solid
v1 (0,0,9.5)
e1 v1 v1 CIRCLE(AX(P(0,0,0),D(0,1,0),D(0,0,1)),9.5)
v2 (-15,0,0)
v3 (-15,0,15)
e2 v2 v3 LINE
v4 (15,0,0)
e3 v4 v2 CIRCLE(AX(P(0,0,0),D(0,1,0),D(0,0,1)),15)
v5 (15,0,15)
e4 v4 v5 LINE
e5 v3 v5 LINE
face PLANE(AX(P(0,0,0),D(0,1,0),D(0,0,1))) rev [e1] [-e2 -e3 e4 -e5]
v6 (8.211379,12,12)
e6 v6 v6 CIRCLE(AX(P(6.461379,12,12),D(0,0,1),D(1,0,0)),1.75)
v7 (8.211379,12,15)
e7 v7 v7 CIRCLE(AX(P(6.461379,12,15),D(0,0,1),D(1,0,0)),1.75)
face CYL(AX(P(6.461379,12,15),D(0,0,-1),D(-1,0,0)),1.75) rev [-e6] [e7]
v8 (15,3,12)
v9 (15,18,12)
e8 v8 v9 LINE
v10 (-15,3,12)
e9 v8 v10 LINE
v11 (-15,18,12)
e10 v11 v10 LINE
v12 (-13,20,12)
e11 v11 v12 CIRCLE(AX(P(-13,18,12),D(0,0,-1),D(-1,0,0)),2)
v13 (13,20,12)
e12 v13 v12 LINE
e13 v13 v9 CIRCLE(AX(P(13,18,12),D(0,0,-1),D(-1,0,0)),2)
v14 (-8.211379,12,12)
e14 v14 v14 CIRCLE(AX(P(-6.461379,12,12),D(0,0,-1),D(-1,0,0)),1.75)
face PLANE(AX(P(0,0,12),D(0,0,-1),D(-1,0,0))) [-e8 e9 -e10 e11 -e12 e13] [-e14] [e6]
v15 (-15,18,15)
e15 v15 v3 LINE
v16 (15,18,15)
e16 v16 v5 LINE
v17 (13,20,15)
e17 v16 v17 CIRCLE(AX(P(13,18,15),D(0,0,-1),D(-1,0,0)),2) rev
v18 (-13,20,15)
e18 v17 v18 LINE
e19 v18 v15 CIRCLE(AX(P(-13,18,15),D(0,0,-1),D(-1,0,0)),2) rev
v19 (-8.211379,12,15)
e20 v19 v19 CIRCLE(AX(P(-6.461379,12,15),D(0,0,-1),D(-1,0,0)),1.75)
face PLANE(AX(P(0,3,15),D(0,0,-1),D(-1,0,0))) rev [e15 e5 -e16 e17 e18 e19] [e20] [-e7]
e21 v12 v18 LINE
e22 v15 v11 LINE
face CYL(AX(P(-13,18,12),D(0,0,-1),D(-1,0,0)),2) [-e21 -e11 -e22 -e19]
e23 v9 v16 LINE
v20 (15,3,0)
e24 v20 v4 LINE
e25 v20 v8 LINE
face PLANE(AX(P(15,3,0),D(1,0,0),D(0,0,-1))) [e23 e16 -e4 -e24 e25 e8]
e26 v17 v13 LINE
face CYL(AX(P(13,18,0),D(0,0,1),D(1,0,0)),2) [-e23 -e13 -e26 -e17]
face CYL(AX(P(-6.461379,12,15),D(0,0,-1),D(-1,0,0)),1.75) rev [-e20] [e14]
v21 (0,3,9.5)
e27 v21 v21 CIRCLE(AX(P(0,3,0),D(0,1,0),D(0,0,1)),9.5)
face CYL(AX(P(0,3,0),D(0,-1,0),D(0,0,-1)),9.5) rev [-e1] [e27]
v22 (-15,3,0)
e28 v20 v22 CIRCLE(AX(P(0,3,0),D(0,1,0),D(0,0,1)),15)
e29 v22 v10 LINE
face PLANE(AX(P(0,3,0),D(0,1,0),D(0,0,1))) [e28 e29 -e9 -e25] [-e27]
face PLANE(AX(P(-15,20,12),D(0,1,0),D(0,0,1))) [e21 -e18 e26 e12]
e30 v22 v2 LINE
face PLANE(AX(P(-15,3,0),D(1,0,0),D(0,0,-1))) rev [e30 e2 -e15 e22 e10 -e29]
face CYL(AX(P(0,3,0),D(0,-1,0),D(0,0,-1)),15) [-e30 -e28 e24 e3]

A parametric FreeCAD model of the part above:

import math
import FreeCAD as App
import Part
import Sketcher
Q = App.Units.Quantity


def edges_at(feature, points):
    """Names of the edges that pass closest to the given points."""
    edges = feature.Shape.Edges
    near = lambda p: min(range(len(edges)), key=lambda i: edges[i].distToShape(Part.Vertex(*p))[0])
    return sorted({f"Edge{near(p) + 1}" for p in points})


def add_polygon(sketch, points):
    """Adds a closed chain of lines whose ends are joined by coincident constraints."""
    first, n = sketch.GeometryCount, len(points)
    for a, b in zip(points, points[1:] + points[:1]):
        sketch.addGeometry(Part.LineSegment(App.Vector(*a, 0), App.Vector(*b, 0)), False)
    for i in range(n):
        sketch.addConstraint(Sketcher.Constraint("Coincident", first + i, 2, first + (i + 1) % n, 1))

doc = App.newDocument("Part")
params = doc.addObject("Spreadsheet::Sheet", "Params")
for row, (alias, value) in enumerate([
    ("sketch1_diameter", "19 mm"),
    ("sketch1_radius", "15 mm"),
    ("sketch1_height", "15 mm"),
    ("pad1_length", "3 mm"),
    ("sketch2_width", "30 mm"),
    ("sketch2_height", "20 mm"),
    ("pad2_length", "3 mm"),
    ("sketch3_diameter", "3.5 mm"),
    ("fillet_radius", "2 mm"),
], start=1):
    params.set(f"A{row}", alias)
    params.set(f"B{row}", "=" + value)
    params.setAlias(f"B{row}", alias)

body = doc.addObject("PartDesign::Body", "Body")

sketch1 = body.newObject("Sketcher::SketchObject", "Sketch")
sketch1.AttachmentSupport = (doc.getObject("XZ_Plane"), [""])
sketch1.MapMode = "FlatFace"
sketch1.addGeometry(Part.LineSegment(App.Vector(15, 15, 0), App.Vector(15, 0, 0)), False)
sketch1.addGeometry(Part.ArcOfCircle(Part.Circle(App.Vector(0, 0, 0), App.Vector(0, 0, 1), 15), math.radians(180), math.radians(360)), False)
sketch1.addGeometry(Part.LineSegment(App.Vector(-15, 0, 0), App.Vector(-15, 15, 0)), False)
sketch1.addGeometry(Part.LineSegment(App.Vector(-15, 15, 0), App.Vector(15, 15, 0)), False)
sketch1.addGeometry(Part.Circle(App.Vector(0, 0, 0), App.Vector(0, 0, 1), 10), False)
sketch1.addConstraint(Sketcher.Constraint("Tangent", 0, 2, 1, 2))
sketch1.addConstraint(Sketcher.Constraint("Tangent", 1, 1, 2, 1))
sketch1.addConstraint(Sketcher.Constraint("Coincident", 2, 2, 3, 1))
sketch1.addConstraint(Sketcher.Constraint("Coincident", 3, 2, 0, 1))
sketch1.addConstraint(Sketcher.Constraint("Vertical", 0))
sketch1.addConstraint(Sketcher.Constraint("Vertical", 2))
sketch1.addConstraint(Sketcher.Constraint("Horizontal", 3))
sketch1.addConstraint(Sketcher.Constraint("Coincident", 1, 3, -1, 1))
sketch1.addConstraint(Sketcher.Constraint("Coincident", 4, 3, -1, 1))
sketch1.addConstraint(Sketcher.Constraint("Diameter", 4, Q("19 mm")))
sketch1.addConstraint(Sketcher.Constraint("Radius", 1, Q("15 mm")))
sketch1.addConstraint(Sketcher.Constraint("DistanceY", 0, 2, 0, 1, Q("15 mm")))
sketch1.setExpression("Constraints[9]", "Params.sketch1_diameter")
sketch1.setExpression("Constraints[10]", "Params.sketch1_radius")
sketch1.setExpression("Constraints[11]", "Params.sketch1_height")
pad1 = body.newObject("PartDesign::Pad", "Pad")
pad1.Profile = sketch1
pad1.setExpression("Length", "Params.pad1_length")
pad1.Reversed = True

sketch2 = body.newObject("Sketcher::SketchObject", "Sketch001")
sketch2.AttachmentSupport = (doc.getObject("XY_Plane"), [""])
sketch2.MapMode = "FlatFace"
sketch2.AttachmentOffset = App.Placement(App.Vector(0, 0, 15), App.Rotation())
add_polygon(sketch2, [(-15, 20), (-15, 0), (15, 0), (15, 20)])
sketch2.addConstraint(Sketcher.Constraint("Vertical", 0))
sketch2.addConstraint(Sketcher.Constraint("Horizontal", 1))
sketch2.addConstraint(Sketcher.Constraint("Vertical", 2))
sketch2.addConstraint(Sketcher.Constraint("Horizontal", 3))
sketch2.addConstraint(Sketcher.Constraint("Symmetric", 0, 2, 1, 2, -1, 1))
sketch2.addConstraint(Sketcher.Constraint("DistanceX", 1, 1, 1, 2, Q("30 mm")))
sketch2.addConstraint(Sketcher.Constraint("DistanceY", 0, 2, 0, 1, Q("20 mm")))
sketch2.setExpression("Constraints[9]", "Params.sketch2_width")
sketch2.setExpression("Constraints[10]", "Params.sketch2_height")
pad2 = body.newObject("PartDesign::Pad", "Pad001")
pad2.Profile = sketch2
pad2.setExpression("Length", "Params.pad2_length")
pad2.Reversed = True

sketch3 = body.newObject("Sketcher::SketchObject", "Sketch002")
sketch3.AttachmentSupport = (doc.getObject("XY_Plane"), [""])
sketch3.MapMode = "FlatFace"
sketch3.AttachmentOffset = App.Placement(App.Vector(0, 0, 12), App.Rotation())
sketch3.addGeometry(Part.Circle(App.Vector(-6.5, 12, 0), App.Vector(0, 0, 1), 1.8), False)
sketch3.addGeometry(Part.Circle(App.Vector(6.5, 12, 0), App.Vector(0, 0, 1), 1.8), False)
sketch3.addConstraint(Sketcher.Constraint("Equal", 0, 1))
sketch3.addConstraint(Sketcher.Constraint("Symmetric", 0, 3, 1, 3, -2))
sketch3.addConstraint(Sketcher.Constraint("Diameter", 0, Q("3.5 mm")))
sketch3.addConstraint(Sketcher.Constraint("DistanceY", -1, 1, 0, 3, Q("12 mm")))
sketch3.addConstraint(Sketcher.Constraint("DistanceX", 0, 3, -1, 1, Q("6.461379 mm")))
sketch3.setExpression("Constraints[2]", "Params.sketch3_diameter")
pocket1 = body.newObject("PartDesign::Pocket", "Pocket")
pocket1.Profile = sketch3
pocket1.Type = "ThroughAll"
pocket1.Reversed = True
doc.recompute()

fillet = body.newObject("PartDesign::Fillet", "Fillet")
fillet.Base = (pocket1, edges_at(pocket1, [(-15, 20, 13.5), (15, 20, 13.5)]))
fillet.setExpression("Radius", "Params.fillet_radius")

doc.recompute()
